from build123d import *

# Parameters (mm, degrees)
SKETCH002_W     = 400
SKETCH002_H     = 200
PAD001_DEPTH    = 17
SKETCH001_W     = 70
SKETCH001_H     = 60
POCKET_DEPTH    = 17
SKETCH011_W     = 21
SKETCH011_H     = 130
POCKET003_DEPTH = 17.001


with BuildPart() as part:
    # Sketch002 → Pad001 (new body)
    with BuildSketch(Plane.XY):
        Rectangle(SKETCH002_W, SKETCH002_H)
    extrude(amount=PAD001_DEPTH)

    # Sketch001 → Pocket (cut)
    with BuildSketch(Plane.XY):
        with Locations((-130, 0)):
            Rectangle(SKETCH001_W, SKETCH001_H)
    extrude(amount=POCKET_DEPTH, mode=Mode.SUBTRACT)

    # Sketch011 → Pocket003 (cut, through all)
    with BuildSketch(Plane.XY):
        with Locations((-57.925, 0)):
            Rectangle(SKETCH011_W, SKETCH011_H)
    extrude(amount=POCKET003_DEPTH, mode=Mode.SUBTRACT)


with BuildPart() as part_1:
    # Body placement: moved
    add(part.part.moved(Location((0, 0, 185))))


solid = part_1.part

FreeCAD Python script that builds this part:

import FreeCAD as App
import Part
import Sketcher
from FreeCAD import Vector
Q = App.Units.Quantity


def add_polygon(sketch, points):
    """Adds a closed chain of lines whose ends are joined by coincident constraints."""
    first, n = sketch.GeometryCount, len(points)
    for a, b in zip(points, points[1:] + points[:1]):
        sketch.addGeometry(Part.LineSegment(App.Vector(*a, 0), App.Vector(*b, 0)), False)
    for i in range(n):
        sketch.addConstraint(Sketcher.Constraint("Coincident", first + i, 2, first + (i + 1) % n, 1))

doc = App.newDocument("Part")
body = doc.addObject("PartDesign::Body", "Body")

# Sketch on XY plane
sketch1 = body.newObject("Sketcher::SketchObject", "Sketch")
sketch1.AttachmentSupport = (doc.getObject("XY_Plane"), [""])
sketch1.MapMode = "FlatFace"
add_polygon(sketch1, [(-200, 100), (-200, -100), (200, -100), (200, 100)])  # lines 0-3
sketch1.addConstraint(Sketcher.Constraint("Vertical", 0))
sketch1.addConstraint(Sketcher.Constraint("Horizontal", 1))
sketch1.addConstraint(Sketcher.Constraint("Vertical", 2))
sketch1.addConstraint(Sketcher.Constraint("Horizontal", 3))
sketch1.addConstraint(Sketcher.Constraint("Symmetric", 0, 2, 2, 2, -1, 1))
sketch1.addConstraint(Sketcher.Constraint("DistanceX", 1, 1, 1, 2, Q("400 mm")))
sketch1.addConstraint(Sketcher.Constraint("DistanceY", 0, 2, 0, 1, Q("200 mm")))
pad1 = body.newObject("PartDesign::Pad", "Pad")
pad1.Profile = sketch1
pad1.Length = 17

# Sketch on XY plane
sketch2 = body.newObject("Sketcher::SketchObject", "Sketch001")
sketch2.AttachmentSupport = (doc.getObject("XY_Plane"), [""])
sketch2.MapMode = "FlatFace"
add_polygon(sketch2, [(-165, 30), (-165, -30), (-95, -30), (-95, 30)])  # lines 0-3
sketch2.addConstraint(Sketcher.Constraint("Vertical", 0))
sketch2.addConstraint(Sketcher.Constraint("Horizontal", 1))
sketch2.addConstraint(Sketcher.Constraint("Vertical", 2))
sketch2.addConstraint(Sketcher.Constraint("Horizontal", 3))
sketch2.addConstraint(Sketcher.Constraint("DistanceX", 1, 1, 1, 2, Q("70 mm")))
sketch2.addConstraint(Sketcher.Constraint("DistanceY", 0, 2, 0, 1, Q("60 mm")))
sketch2.addConstraint(Sketcher.Constraint("DistanceX", 0, 2, -1, 1, Q("165 mm")))
sketch2.addConstraint(Sketcher.Constraint("DistanceY", 0, 2, -1, 1, Q("30 mm")))
pocket1 = body.newObject("PartDesign::Pocket", "Pocket")
pocket1.Profile = sketch2
pocket1.Length = 17
pocket1.Reversed = True

# Sketch on XY plane
sketch3 = body.newObject("Sketcher::SketchObject", "Sketch002")
sketch3.AttachmentSupport = (doc.getObject("XY_Plane"), [""])
sketch3.MapMode = "FlatFace"
add_polygon(sketch3, [(-68.425, 65), (-68.425, -65), (-47.425, -65), (-47.425, 65)])  # lines 0-3
sketch3.addConstraint(Sketcher.Constraint("Vertical", 0))
sketch3.addConstraint(Sketcher.Constraint("Horizontal", 1))
sketch3.addConstraint(Sketcher.Constraint("Vertical", 2))
sketch3.addConstraint(Sketcher.Constraint("Horizontal", 3))
sketch3.addConstraint(Sketcher.Constraint("DistanceX", 1, 1, 1, 2, Q("21 mm")))
sketch3.addConstraint(Sketcher.Constraint("DistanceY", 0, 2, 0, 1, Q("130 mm")))
sketch3.addConstraint(Sketcher.Constraint("DistanceY", 0, 2, -1, 1, Q("65 mm")))
sketch3.addConstraint(Sketcher.Constraint("DistanceX", 0, 2, -1, 1, Q("68.425 mm")))
pocket2 = body.newObject("PartDesign::Pocket", "Pocket001")
pocket2.Profile = sketch3
pocket2.Type = "ThroughAll"
pocket2.Reversed = True
body2 = doc.addObject("PartDesign::Body", "Body001")
doc.recompute()

body.Placement = App.Placement(Vector(0, 0, 185), App.Rotation(Vector(0, 0, 1), 0))
boolean = body2.newObject("PartDesign::Boolean", "Boolean")
boolean.Type = "Fuse"
boolean.addObjects([body])

doc.recompute()
